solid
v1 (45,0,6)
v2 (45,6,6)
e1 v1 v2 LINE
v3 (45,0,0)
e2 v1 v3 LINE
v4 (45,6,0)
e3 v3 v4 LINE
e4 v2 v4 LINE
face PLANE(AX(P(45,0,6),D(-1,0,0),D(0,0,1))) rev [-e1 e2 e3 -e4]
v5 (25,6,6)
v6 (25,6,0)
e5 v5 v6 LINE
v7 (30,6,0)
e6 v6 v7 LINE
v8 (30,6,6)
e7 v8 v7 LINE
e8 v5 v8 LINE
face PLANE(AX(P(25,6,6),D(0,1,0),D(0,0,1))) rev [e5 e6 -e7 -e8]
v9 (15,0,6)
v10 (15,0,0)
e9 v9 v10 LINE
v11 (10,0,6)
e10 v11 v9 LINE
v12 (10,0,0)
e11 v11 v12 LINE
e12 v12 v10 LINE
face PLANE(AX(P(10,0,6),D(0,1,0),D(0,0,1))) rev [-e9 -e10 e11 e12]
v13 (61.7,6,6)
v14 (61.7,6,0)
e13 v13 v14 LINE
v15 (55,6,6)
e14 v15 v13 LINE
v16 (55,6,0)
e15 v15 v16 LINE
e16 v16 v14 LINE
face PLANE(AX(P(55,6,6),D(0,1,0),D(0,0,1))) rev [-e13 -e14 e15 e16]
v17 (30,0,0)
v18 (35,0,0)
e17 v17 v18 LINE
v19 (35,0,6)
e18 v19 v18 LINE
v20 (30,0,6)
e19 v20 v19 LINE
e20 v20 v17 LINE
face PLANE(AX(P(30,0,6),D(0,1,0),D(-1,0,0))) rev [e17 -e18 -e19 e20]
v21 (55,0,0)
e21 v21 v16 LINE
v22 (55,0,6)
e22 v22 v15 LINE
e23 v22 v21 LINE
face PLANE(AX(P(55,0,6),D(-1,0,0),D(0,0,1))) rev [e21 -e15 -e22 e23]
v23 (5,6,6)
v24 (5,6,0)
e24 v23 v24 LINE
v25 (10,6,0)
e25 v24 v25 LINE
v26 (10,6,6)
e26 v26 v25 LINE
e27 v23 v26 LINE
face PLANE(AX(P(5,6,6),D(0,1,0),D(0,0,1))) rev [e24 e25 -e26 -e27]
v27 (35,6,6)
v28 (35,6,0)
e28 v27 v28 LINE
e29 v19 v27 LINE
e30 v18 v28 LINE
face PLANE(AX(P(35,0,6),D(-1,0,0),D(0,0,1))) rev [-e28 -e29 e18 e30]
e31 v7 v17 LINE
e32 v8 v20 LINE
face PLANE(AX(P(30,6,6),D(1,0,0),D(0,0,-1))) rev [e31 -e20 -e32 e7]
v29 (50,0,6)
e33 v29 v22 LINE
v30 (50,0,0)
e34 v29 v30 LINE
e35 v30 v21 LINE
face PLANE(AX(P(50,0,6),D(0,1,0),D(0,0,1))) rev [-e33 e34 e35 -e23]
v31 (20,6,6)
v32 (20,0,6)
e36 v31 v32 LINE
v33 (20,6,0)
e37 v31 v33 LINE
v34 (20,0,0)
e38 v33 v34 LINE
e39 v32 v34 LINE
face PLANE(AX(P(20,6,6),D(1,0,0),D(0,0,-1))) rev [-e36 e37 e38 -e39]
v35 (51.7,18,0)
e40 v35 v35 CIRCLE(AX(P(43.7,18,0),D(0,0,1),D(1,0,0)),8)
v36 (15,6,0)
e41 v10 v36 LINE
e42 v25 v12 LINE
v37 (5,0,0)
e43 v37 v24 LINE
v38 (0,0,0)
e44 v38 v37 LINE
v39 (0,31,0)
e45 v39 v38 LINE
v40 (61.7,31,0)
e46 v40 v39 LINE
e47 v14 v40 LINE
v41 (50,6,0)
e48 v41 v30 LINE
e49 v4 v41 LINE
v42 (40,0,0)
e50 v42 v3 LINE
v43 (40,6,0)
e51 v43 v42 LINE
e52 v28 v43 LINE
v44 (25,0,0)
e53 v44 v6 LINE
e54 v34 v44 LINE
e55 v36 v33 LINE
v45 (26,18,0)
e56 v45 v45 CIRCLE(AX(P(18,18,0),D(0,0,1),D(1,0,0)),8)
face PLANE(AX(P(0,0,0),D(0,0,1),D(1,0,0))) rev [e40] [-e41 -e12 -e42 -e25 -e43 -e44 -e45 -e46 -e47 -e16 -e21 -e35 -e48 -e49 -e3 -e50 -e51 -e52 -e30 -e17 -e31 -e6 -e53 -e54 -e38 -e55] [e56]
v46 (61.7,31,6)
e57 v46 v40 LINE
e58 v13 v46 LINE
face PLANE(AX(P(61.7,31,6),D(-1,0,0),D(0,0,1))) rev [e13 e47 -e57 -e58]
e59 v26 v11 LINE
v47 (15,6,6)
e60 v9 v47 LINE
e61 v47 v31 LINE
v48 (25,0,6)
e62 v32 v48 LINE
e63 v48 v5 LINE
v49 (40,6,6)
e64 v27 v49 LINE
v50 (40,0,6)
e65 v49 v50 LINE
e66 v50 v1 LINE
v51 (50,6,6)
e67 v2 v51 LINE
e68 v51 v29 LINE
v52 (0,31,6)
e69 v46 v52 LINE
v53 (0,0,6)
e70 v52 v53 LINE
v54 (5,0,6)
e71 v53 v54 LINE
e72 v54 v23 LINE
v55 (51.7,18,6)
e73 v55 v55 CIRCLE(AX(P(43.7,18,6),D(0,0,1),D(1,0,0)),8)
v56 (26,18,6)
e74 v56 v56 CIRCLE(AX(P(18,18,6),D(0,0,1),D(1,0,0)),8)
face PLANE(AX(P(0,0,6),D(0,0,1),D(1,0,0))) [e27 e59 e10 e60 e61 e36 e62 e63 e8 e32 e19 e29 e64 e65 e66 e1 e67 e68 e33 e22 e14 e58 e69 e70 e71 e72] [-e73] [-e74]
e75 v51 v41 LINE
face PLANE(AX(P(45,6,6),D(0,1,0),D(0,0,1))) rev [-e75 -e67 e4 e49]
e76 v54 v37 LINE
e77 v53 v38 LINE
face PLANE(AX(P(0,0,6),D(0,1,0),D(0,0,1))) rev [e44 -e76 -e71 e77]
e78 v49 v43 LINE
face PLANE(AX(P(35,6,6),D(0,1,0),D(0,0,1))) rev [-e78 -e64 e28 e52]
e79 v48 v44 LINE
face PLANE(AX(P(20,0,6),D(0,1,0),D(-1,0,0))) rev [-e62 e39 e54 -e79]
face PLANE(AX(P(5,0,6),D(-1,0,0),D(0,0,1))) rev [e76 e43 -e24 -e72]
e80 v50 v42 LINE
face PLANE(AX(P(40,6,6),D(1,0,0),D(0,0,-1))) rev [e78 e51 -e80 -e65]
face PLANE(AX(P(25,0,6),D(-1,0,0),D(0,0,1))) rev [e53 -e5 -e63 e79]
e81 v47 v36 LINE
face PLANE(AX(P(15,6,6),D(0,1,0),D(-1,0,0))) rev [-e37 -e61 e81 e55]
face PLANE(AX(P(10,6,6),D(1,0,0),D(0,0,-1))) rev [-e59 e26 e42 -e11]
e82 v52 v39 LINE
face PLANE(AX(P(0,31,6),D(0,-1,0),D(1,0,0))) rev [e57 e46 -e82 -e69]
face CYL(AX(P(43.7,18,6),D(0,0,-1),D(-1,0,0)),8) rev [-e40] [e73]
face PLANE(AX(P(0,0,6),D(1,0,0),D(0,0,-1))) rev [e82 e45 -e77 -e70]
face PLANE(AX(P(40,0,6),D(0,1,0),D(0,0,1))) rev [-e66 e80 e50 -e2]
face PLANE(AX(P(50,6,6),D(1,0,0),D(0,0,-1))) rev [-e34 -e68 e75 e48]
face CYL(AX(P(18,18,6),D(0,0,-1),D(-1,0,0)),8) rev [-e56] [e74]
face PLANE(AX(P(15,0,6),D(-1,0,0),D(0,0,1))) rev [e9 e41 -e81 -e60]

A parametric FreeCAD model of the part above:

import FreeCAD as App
import Part
import Sketcher
Q = App.Units.Quantity

doc = App.newDocument("Part")
body = doc.addObject("PartDesign::Body", "Body")

# Sketch on XY plane
sketch1 = body.newObject("Sketcher::SketchObject", "Sketch")
sketch1.AttachmentSupport = (doc.getObject("XY_Plane"), [""])
sketch1.MapMode = "FlatFace"
sketch1.addGeometry(Part.LineSegment(App.Vector(0, 31, 0), App.Vector(0, 0, 0)), False)
sketch1.addGeometry(Part.LineSegment(App.Vector(0, 0, 0), App.Vector(5, 0, 0)), False)
sketch1.addGeometry(Part.LineSegment(App.Vector(5, 0, 0), App.Vector(5, 6, 0)), False)
sketch1.addGeometry(Part.LineSegment(App.Vector(5, 6, 0), App.Vector(10, 6, 0)), False)
sketch1.addGeometry(Part.LineSegment(App.Vector(10, 6, 0), App.Vector(10, 0, 0)), False)
sketch1.addGeometry(Part.LineSegment(App.Vector(10, 0, 0), App.Vector(15, 0, 0)), False)
sketch1.addGeometry(Part.LineSegment(App.Vector(15, 0, 0), App.Vector(15, 6, 0)), False)
sketch1.addGeometry(Part.LineSegment(App.Vector(15, 6, 0), App.Vector(20, 6, 0)), False)
sketch1.addGeometry(Part.LineSegment(App.Vector(20, 6, 0), App.Vector(20, 0, 0)), False)
sketch1.addGeometry(Part.LineSegment(App.Vector(20, 0, 0), App.Vector(25, 0, 0)), False)
sketch1.addGeometry(Part.LineSegment(App.Vector(25, 0, 0), App.Vector(25, 6, 0)), False)
sketch1.addGeometry(Part.LineSegment(App.Vector(25, 6, 0), App.Vector(30, 6, 0)), False)
sketch1.addGeometry(Part.LineSegment(App.Vector(30, 6, 0), App.Vector(30, 0, 0)), False)
sketch1.addGeometry(Part.LineSegment(App.Vector(30, 0, 0), App.Vector(35, 0, 0)), False)
sketch1.addGeometry(Part.LineSegment(App.Vector(35, 0, 0), App.Vector(35, 6, 0)), False)
sketch1.addGeometry(Part.LineSegment(App.Vector(35, 6, 0), App.Vector(40, 6, 0)), False)
sketch1.addGeometry(Part.LineSegment(App.Vector(40, 6, 0), App.Vector(40, 0, 0)), False)
sketch1.addGeometry(Part.LineSegment(App.Vector(40, 0, 0), App.Vector(45, 0, 0)), False)
sketch1.addGeometry(Part.LineSegment(App.Vector(45, 0, 0), App.Vector(45, 6, 0)), False)
sketch1.addGeometry(Part.LineSegment(App.Vector(45, 6, 0), App.Vector(50, 6, 0)), False)
sketch1.addGeometry(Part.LineSegment(App.Vector(50, 6, 0), App.Vector(50, 0, 0)), False)
sketch1.addGeometry(Part.LineSegment(App.Vector(50, 0, 0), App.Vector(55, 0, 0)), False)
sketch1.addGeometry(Part.LineSegment(App.Vector(55, 0, 0), App.Vector(55, 6, 0)), False)
sketch1.addGeometry(Part.LineSegment(App.Vector(55, 6, 0), App.Vector(62, 6, 0)), False)
sketch1.addGeometry(Part.LineSegment(App.Vector(62, 6, 0), App.Vector(62, 31, 0)), False)
sketch1.addGeometry(Part.LineSegment(App.Vector(62, 31, 0), App.Vector(0, 31, 0)), False)
sketch1.addGeometry(Part.Circle(App.Vector(44, 18, 0), App.Vector(0, 0, 1), 8), False)
sketch1.addGeometry(Part.Circle(App.Vector(18, 18, 0), App.Vector(0, 0, 1), 8), False)
sketch1.addConstraint(Sketcher.Constraint("Coincident", 0, 2, 1, 1))
sketch1.addConstraint(Sketcher.Constraint("Coincident", 1, 2, 2, 1))
sketch1.addConstraint(Sketcher.Constraint("Coincident", 2, 2, 3, 1))
sketch1.addConstraint(Sketcher.Constraint("Coincident", 3, 2, 4, 1))
sketch1.addConstraint(Sketcher.Constraint("Coincident", 4, 2, 5, 1))
sketch1.addConstraint(Sketcher.Constraint("Coincident", 5, 2, 6, 1))
sketch1.addConstraint(Sketcher.Constraint("Coincident", 6, 2, 7, 1))
sketch1.addConstraint(Sketcher.Constraint("Coincident", 7, 2, 8, 1))
sketch1.addConstraint(Sketcher.Constraint("Coincident", 8, 2, 9, 1))
sketch1.addConstraint(Sketcher.Constraint("Coincident", 9, 2, 10, 1))
sketch1.addConstraint(Sketcher.Constraint("Coincident", 10, 2, 11, 1))
sketch1.addConstraint(Sketcher.Constraint("Coincident", 11, 2, 12, 1))
sketch1.addConstraint(Sketcher.Constraint("Coincident", 12, 2, 13, 1))
sketch1.addConstraint(Sketcher.Constraint("Coincident", 13, 2, 14, 1))
sketch1.addConstraint(Sketcher.Constraint("Coincident", 14, 2, 15, 1))
sketch1.addConstraint(Sketcher.Constraint("Coincident", 15, 2, 16, 1))
sketch1.addConstraint(Sketcher.Constraint("Coincident", 16, 2, 17, 1))
sketch1.addConstraint(Sketcher.Constraint("Coincident", 17, 2, 18, 1))
sketch1.addConstraint(Sketcher.Constraint("Coincident", 18, 2, 19, 1))
sketch1.addConstraint(Sketcher.Constraint("Coincident", 19, 2, 20, 1))
sketch1.addConstraint(Sketcher.Constraint("Coincident", 20, 2, 21, 1))
sketch1.addConstraint(Sketcher.Constraint("Coincident", 21, 2, 22, 1))
sketch1.addConstraint(Sketcher.Constraint("Coincident", 22, 2, 23, 1))
sketch1.addConstraint(Sketcher.Constraint("Coincident", 23, 2, 24, 1))
sketch1.addConstraint(Sketcher.Constraint("Coincident", 24, 2, 25, 1))
sketch1.addConstraint(Sketcher.Constraint("Coincident", 25, 2, 0, 1))
sketch1.addConstraint(Sketcher.Constraint("Vertical", 0))
sketch1.addConstraint(Sketcher.Constraint("Horizontal", 1))
sketch1.addConstraint(Sketcher.Constraint("Vertical", 2))
sketch1.addConstraint(Sketcher.Constraint("Horizontal", 3))
sketch1.addConstraint(Sketcher.Constraint("Vertical", 4))
sketch1.addConstraint(Sketcher.Constraint("Horizontal", 5))
sketch1.addConstraint(Sketcher.Constraint("Vertical", 6))
sketch1.addConstraint(Sketcher.Constraint("Horizontal", 7))
sketch1.addConstraint(Sketcher.Constraint("Vertical", 8))
sketch1.addConstraint(Sketcher.Constraint("Horizontal", 9))
sketch1.addConstraint(Sketcher.Constraint("Vertical", 10))
sketch1.addConstraint(Sketcher.Constraint("Horizontal", 11))
sketch1.addConstraint(Sketcher.Constraint("Vertical", 12))
sketch1.addConstraint(Sketcher.Constraint("Horizontal", 13))
sketch1.addConstraint(Sketcher.Constraint("Vertical", 14))
sketch1.addConstraint(Sketcher.Constraint("Horizontal", 15))
sketch1.addConstraint(Sketcher.Constraint("Vertical", 16))
sketch1.addConstraint(Sketcher.Constraint("Horizontal", 17))
sketch1.addConstraint(Sketcher.Constraint("Vertical", 18))
sketch1.addConstraint(Sketcher.Constraint("Horizontal", 19))
sketch1.addConstraint(Sketcher.Constraint("Vertical", 20))
sketch1.addConstraint(Sketcher.Constraint("Horizontal", 21))
sketch1.addConstraint(Sketcher.Constraint("Vertical", 22))
sketch1.addConstraint(Sketcher.Constraint("Horizontal", 23))
sketch1.addConstraint(Sketcher.Constraint("Vertical", 24))
sketch1.addConstraint(Sketcher.Constraint("Horizontal", 25))
sketch1.addConstraint(Sketcher.Constraint("Coincident", 0, 2, -1, 1))
sketch1.addConstraint(Sketcher.Constraint("Equal", 26, 27))
sketch1.addConstraint(Sketcher.Constraint("PointOnObject", 4, 2, -1))
sketch1.addConstraint(Sketcher.Constraint("PointOnObject", 8, 2, -1))
sketch1.addConstraint(Sketcher.Constraint("PointOnObject", 12, 2, -1))
sketch1.addConstraint(Sketcher.Constraint("PointOnObject", 16, 2, -1))
sketch1.addConstraint(Sketcher.Constraint("PointOnObject", 20, 2, -1))
sketch1.addConstraint(Sketcher.Constraint("Horizontal", 26, 3, 27, 3))
sketch1.addConstraint(Sketcher.Constraint("Horizontal", 3, 2, 6, 2))
sketch1.addConstraint(Sketcher.Constraint("Horizontal", 7, 2, 10, 2))
sketch1.addConstraint(Sketcher.Constraint("Horizontal", 11, 2, 14, 2))
sketch1.addConstraint(Sketcher.Constraint("Horizontal", 15, 2, 18, 2))
sketch1.addConstraint(Sketcher.Constraint("Horizontal", 19, 2, 22, 2))
sketch1.addConstraint(Sketcher.Constraint("Equal", 1, 3))
sketch1.addConstraint(Sketcher.Constraint("Equal", 3, 5))
sketch1.addConstraint(Sketcher.Constraint("Equal", 5, 7))
sketch1.addConstraint(Sketcher.Constraint("Equal", 7, 9))
sketch1.addConstraint(Sketcher.Constraint("Equal", 9, 11))
sketch1.addConstraint(Sketcher.Constraint("Equal", 11, 13))
sketch1.addConstraint(Sketcher.Constraint("Equal", 13, 15))
sketch1.addConstraint(Sketcher.Constraint("Equal", 15, 17))
sketch1.addConstraint(Sketcher.Constraint("Equal", 17, 19))
sketch1.addConstraint(Sketcher.Constraint("Equal", 19, 21))
sketch1.addConstraint(Sketcher.Constraint("Diameter", 26, Q("16 mm")))
sketch1.addConstraint(Sketcher.Constraint("DistanceX", 1, 1, 1, 2, Q("5 mm")))
sketch1.addConstraint(Sketcher.Constraint("DistanceY", 0, 2, 0, 1, Q("31 mm")))
sketch1.addConstraint(Sketcher.Constraint("DistanceY", 2, 1, 2, 2, Q("6 mm")))
sketch1.addConstraint(Sketcher.Constraint("DistanceX", 23, 1, 23, 2, Q("6.7 mm")))
sketch1.addConstraint(Sketcher.Constraint("DistanceY", -1, 1, 26, 3, Q("18 mm")))
sketch1.addConstraint(Sketcher.Constraint("DistanceX", -1, 1, 27, 3, Q("18 mm")))
sketch1.addConstraint(Sketcher.Constraint("DistanceX", 26, 3, 24, 2, Q("18 mm")))
pad1 = body.newObject("PartDesign::Pad", "Pad")
pad1.Profile = sketch1
pad1.Length = 6

doc.recompute()
